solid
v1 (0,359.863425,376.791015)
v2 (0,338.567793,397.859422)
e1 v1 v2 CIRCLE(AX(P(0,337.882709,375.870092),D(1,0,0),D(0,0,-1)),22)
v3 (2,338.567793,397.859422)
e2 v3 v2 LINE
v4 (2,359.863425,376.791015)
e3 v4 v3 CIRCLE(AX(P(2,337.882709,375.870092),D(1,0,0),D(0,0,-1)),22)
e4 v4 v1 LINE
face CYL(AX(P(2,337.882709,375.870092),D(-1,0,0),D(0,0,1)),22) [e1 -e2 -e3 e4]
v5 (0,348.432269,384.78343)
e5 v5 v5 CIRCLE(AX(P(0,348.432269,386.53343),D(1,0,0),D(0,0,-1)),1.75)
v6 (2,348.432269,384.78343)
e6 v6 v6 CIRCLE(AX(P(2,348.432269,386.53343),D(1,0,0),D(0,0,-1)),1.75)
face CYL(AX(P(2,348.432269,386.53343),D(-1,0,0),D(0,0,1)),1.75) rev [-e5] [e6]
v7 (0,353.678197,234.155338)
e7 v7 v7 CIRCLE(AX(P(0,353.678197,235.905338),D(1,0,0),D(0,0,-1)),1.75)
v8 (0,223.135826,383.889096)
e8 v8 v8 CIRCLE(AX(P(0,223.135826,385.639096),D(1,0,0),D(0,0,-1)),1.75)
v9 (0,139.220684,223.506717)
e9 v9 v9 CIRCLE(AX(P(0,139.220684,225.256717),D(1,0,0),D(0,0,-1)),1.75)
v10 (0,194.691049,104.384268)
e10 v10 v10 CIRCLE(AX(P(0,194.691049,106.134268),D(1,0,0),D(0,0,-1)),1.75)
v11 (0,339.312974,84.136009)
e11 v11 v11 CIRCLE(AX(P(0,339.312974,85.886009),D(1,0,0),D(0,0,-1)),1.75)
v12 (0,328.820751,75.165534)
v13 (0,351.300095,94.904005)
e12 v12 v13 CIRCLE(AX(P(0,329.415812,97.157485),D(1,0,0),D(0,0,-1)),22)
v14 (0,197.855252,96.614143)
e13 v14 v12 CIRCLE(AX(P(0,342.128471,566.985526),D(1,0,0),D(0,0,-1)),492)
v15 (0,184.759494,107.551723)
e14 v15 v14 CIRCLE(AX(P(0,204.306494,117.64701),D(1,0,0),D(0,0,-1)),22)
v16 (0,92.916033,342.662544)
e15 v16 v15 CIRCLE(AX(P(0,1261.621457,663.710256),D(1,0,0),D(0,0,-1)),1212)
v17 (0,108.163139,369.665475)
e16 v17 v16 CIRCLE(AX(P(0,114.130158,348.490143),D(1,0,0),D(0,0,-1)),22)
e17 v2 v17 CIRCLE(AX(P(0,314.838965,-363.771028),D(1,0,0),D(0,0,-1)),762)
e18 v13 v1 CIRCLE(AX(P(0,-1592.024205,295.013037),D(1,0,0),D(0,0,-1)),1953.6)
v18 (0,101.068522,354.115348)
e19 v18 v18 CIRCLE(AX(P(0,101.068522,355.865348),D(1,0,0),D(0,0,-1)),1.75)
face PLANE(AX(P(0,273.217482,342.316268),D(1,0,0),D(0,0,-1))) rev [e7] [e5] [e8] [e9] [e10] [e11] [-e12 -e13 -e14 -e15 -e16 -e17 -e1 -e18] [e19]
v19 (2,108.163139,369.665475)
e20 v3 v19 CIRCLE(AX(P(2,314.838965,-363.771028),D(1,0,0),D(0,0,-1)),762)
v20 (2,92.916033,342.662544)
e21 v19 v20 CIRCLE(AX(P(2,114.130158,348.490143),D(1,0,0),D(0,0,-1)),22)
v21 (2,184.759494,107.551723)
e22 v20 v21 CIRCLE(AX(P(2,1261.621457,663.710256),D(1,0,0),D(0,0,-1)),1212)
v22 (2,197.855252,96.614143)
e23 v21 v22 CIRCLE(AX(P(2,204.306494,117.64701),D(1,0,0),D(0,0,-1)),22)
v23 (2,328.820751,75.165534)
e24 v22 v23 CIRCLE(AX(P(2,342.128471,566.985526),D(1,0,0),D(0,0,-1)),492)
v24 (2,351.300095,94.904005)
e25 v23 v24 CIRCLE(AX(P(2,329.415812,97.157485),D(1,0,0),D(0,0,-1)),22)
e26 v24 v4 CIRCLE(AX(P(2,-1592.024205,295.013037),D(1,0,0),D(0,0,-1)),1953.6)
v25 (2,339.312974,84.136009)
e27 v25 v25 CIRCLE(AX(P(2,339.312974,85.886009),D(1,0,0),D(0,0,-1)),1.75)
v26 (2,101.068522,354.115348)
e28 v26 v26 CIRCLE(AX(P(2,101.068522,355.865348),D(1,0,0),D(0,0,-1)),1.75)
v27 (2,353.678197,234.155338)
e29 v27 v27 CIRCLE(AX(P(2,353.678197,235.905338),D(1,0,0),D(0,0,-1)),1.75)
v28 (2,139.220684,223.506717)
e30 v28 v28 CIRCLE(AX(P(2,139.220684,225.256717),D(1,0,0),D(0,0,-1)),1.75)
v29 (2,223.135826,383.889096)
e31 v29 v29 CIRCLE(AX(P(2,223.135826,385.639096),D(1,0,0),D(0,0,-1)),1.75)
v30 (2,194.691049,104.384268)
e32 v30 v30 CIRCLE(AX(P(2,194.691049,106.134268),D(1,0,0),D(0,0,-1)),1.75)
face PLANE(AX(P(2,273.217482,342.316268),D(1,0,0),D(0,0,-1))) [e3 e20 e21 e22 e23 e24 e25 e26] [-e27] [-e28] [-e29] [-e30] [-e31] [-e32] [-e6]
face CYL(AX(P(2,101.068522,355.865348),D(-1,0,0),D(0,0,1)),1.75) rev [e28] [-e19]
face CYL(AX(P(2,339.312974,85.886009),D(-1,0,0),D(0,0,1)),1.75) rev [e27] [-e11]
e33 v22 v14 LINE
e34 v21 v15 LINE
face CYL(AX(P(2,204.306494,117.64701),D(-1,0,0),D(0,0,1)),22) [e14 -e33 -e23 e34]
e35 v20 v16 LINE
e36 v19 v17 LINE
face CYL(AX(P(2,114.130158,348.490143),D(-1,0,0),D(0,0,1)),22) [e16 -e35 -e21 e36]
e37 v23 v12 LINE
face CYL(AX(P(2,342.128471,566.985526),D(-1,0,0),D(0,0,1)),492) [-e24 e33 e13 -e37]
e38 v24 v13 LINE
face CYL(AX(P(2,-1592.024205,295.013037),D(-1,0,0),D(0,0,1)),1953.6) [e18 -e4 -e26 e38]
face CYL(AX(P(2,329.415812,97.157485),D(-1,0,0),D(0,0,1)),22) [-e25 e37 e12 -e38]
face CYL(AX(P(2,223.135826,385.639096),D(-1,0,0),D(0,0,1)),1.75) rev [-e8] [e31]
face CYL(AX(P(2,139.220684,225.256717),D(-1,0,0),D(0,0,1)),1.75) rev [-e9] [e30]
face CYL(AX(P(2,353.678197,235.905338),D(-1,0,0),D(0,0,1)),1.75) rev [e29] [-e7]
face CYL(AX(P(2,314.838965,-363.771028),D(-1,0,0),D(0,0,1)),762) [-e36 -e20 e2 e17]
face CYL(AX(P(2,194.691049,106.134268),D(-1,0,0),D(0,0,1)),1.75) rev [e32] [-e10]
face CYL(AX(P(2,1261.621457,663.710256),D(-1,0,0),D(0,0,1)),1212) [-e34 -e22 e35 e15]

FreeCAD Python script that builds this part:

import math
import FreeCAD as App
import Part
import Sketcher
Q = App.Units.Quantity

doc = App.newDocument("Part")
body = doc.addObject("PartDesign::Body", "Body")

# Sketch on YZ plane
sketch1 = doc.addObject("Sketcher::SketchObject", "Sketch")
body.addObject(sketch1)
sketch1.AttachmentSupport = (doc.YZ_Plane, [""])
sketch1.MapMode = "FlatFace"
sketch1.addGeometry([
    Part.ArcOfCircle(Part.Circle(App.Vector(342.1, 567, 0), App.Vector(0, 0, 1), 492), math.radians(-107.05), math.radians(-91.55)),  # 0
    Part.ArcOfCircle(Part.Circle(App.Vector(329.4, 97.2, 0), App.Vector(0, 0, 1), 22), math.radians(-92), math.radians(-6)),  # 1
    Part.ArcOfCircle(Part.Circle(App.Vector(-1592, 295, 0), App.Vector(0, 0, 1), 1953.6), math.radians(-5.88), math.radians(2.4)),  # 2
    Part.ArcOfCircle(Part.Circle(App.Vector(337.9, 375.9, 0), App.Vector(0, 0, 1), 22), math.radians(2), math.radians(88)),  # 3
    Part.ArcOfCircle(Part.Circle(App.Vector(314.8, -363.8, 0), App.Vector(0, 0, 1), 762), math.radians(88.22), math.radians(105.74)),  # 4
    Part.ArcOfCircle(Part.Circle(App.Vector(114.1, 348.5, 0), App.Vector(0, 0, 1), 22), math.radians(106), math.radians(195)),  # 5
    Part.ArcOfCircle(Part.Circle(App.Vector(1261.6, 663.7, 0), App.Vector(0, 0, 1), 1212), math.radians(-164.64), math.radians(-152.69)),  # 6
    Part.ArcOfCircle(Part.Circle(App.Vector(204.3, 117.6, 0), App.Vector(0, 0, 1), 22), math.radians(-153), math.radians(-107)),  # 7
    Part.Circle(App.Vector(101.1, 355.9, 0), App.Vector(0, 0, 1), 1.8),  # 8
    Part.Circle(App.Vector(223.1, 385.6, 0), App.Vector(0, 0, 1), 1.8),  # 9
    Part.Circle(App.Vector(139.2, 225.3, 0), App.Vector(0, 0, 1), 1.8),  # 10
    Part.Circle(App.Vector(194.7, 106.1, 0), App.Vector(0, 0, 1), 1.8),  # 11
    Part.Circle(App.Vector(348.4, 386.5, 0), App.Vector(0, 0, 1), 1.8),  # 12
    Part.Circle(App.Vector(353.7, 235.9, 0), App.Vector(0, 0, 1), 1.8),  # 13
    Part.Circle(App.Vector(339.3, 85.9, 0), App.Vector(0, 0, 1), 1.8),  # 14
], False)
sketch1.addConstraint([
    Sketcher.Constraint("Tangent", 0, 2, 1, 1),
    Sketcher.Constraint("Tangent", 1, 2, 2, 1),
    Sketcher.Constraint("Tangent", 2, 2, 3, 1),
    Sketcher.Constraint("Tangent", 3, 2, 4, 1),
    Sketcher.Constraint("Tangent", 4, 2, 5, 1),
    Sketcher.Constraint("Tangent", 5, 2, 6, 1),
    Sketcher.Constraint("Tangent", 6, 2, 7, 1),
    Sketcher.Constraint("Tangent", 7, 2, 0, 1),
    Sketcher.Constraint("Equal", 1, 3),
    Sketcher.Constraint("Equal", 3, 5),
    Sketcher.Constraint("Equal", 5, 7),
    Sketcher.Constraint("Equal", 8, 9),
    Sketcher.Constraint("Equal", 9, 10),
    Sketcher.Constraint("Equal", 10, 11),
    Sketcher.Constraint("Equal", 11, 12),
    Sketcher.Constraint("Equal", 12, 13),
    Sketcher.Constraint("Equal", 13, 14),
    Sketcher.Constraint("Radius", 0, Q("492 mm")),
    Sketcher.Constraint("Radius", 1, Q("22 mm")),
    Sketcher.Constraint("Radius", 4, Q("762 mm")),
    Sketcher.Constraint("Radius", 6, Q("1212 mm")),
    Sketcher.Constraint("Diameter", 8, Q("3.5 mm")),
    Sketcher.Constraint("Radius", 2, Q("1953.6 mm")),
    Sketcher.Constraint("DistanceY", 14, 3, 7, 3, Q("31.761001 mm")),
    Sketcher.Constraint("DistanceX", 5, 3, 6, 3, Q("1147.491299 mm")),
    Sketcher.Constraint("DistanceX", 7, 3, 1, 2, Q("146.993601 mm")),
    Sketcher.Constraint("DistanceX", 9, 3, 2, 2, Q("136.727599 mm")),
    Sketcher.Constraint("DistanceX", -1, 1, 0, 3, Q("342.128471 mm")),
    Sketcher.Constraint("DistanceX", -1, 1, 3, 3, Q("337.882709 mm")),
    Sketcher.Constraint("DistanceY", -1, 1, 3, 3, Q("375.870092 mm")),
    Sketcher.Constraint("DistanceX", -1, 1, 5, 3, Q("114.130158 mm")),
    Sketcher.Constraint("DistanceY", -1, 1, 7, 3, Q("117.64701 mm")),
    Sketcher.Constraint("DistanceX", -1, 1, 8, 3, Q("101.068522 mm")),
    Sketcher.Constraint("DistanceX", -1, 1, 11, 3, Q("194.691049 mm")),
    Sketcher.Constraint("DistanceX", -1, 1, 12, 3, Q("348.432269 mm")),
    Sketcher.Constraint("DistanceY", -1, 1, 12, 3, Q("386.53343 mm")),
    Sketcher.Constraint("DistanceX", 1, 3, 0, 3, Q("12.712659 mm")),
    Sketcher.Constraint("DistanceY", 7, 3, 8, 3, Q("238.218338 mm")),
    Sketcher.Constraint("DistanceY", 8, 3, 9, 3, Q("29.773749 mm")),
    Sketcher.Constraint("DistanceX", 10, 3, 7, 3, Q("65.08581 mm")),
    Sketcher.Constraint("DistanceY", 10, 3, 8, 3, Q("130.608631 mm")),
    Sketcher.Constraint("DistanceY", 11, 3, 7, 3, Q("11.512742 mm")),
    Sketcher.Constraint("DistanceX", 3, 3, 13, 3, Q("15.795489 mm")),
    Sketcher.Constraint("DistanceY", 13, 3, 9, 3, Q("149.733759 mm")),
    Sketcher.Constraint("DistanceX", 7, 3, 14, 3, Q("135.006481 mm")),
])
pad1 = doc.addObject("PartDesign::Pad", "Pad")
body.addObject(pad1)
pad1.Profile = sketch1
pad1.Length = 2

doc.recompute()
